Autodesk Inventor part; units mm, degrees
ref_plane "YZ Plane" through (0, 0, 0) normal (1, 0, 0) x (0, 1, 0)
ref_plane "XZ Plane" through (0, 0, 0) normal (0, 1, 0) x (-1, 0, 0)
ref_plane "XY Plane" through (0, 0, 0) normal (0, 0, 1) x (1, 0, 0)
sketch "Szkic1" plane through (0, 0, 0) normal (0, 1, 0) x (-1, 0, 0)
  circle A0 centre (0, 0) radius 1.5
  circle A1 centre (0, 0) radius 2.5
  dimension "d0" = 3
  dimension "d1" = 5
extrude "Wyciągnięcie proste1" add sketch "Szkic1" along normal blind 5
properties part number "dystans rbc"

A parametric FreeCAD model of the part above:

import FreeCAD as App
import Part
import Sketcher

V = App.Vector
Q = App.Units.Quantity

doc = App.newDocument("Part")
body = doc.addObject("PartDesign::Body", "Body")

# Sketch on XZ plane
sketch1 = body.newObject("Sketcher::SketchObject", "Sketch")
sketch1.AttachmentSupport = (doc.getObject("XZ_Plane"), [""])
sketch1.MapMode = "FlatFace"
sketch1.addGeometry([
    Part.Circle(V(0, 0, 0), V(0, 0, 1), 2.5),
    Part.Circle(V(0, 0, 0), V(0, 0, 1), 1.5),
], False)
sketch1.addConstraint([
    Sketcher.Constraint("Coincident", 0, 3, -1, 1),
    Sketcher.Constraint("Coincident", 1, 3, -1, 1),
    Sketcher.Constraint("Diameter", 0, Q("5 mm")),
    Sketcher.Constraint("Diameter", 1, Q("3 mm")),
])
pad1 = body.newObject("PartDesign::Pad", "Pad")
pad1.Profile = sketch1
pad1.Length = 5
pad1.Reversed = True

doc.recompute()
